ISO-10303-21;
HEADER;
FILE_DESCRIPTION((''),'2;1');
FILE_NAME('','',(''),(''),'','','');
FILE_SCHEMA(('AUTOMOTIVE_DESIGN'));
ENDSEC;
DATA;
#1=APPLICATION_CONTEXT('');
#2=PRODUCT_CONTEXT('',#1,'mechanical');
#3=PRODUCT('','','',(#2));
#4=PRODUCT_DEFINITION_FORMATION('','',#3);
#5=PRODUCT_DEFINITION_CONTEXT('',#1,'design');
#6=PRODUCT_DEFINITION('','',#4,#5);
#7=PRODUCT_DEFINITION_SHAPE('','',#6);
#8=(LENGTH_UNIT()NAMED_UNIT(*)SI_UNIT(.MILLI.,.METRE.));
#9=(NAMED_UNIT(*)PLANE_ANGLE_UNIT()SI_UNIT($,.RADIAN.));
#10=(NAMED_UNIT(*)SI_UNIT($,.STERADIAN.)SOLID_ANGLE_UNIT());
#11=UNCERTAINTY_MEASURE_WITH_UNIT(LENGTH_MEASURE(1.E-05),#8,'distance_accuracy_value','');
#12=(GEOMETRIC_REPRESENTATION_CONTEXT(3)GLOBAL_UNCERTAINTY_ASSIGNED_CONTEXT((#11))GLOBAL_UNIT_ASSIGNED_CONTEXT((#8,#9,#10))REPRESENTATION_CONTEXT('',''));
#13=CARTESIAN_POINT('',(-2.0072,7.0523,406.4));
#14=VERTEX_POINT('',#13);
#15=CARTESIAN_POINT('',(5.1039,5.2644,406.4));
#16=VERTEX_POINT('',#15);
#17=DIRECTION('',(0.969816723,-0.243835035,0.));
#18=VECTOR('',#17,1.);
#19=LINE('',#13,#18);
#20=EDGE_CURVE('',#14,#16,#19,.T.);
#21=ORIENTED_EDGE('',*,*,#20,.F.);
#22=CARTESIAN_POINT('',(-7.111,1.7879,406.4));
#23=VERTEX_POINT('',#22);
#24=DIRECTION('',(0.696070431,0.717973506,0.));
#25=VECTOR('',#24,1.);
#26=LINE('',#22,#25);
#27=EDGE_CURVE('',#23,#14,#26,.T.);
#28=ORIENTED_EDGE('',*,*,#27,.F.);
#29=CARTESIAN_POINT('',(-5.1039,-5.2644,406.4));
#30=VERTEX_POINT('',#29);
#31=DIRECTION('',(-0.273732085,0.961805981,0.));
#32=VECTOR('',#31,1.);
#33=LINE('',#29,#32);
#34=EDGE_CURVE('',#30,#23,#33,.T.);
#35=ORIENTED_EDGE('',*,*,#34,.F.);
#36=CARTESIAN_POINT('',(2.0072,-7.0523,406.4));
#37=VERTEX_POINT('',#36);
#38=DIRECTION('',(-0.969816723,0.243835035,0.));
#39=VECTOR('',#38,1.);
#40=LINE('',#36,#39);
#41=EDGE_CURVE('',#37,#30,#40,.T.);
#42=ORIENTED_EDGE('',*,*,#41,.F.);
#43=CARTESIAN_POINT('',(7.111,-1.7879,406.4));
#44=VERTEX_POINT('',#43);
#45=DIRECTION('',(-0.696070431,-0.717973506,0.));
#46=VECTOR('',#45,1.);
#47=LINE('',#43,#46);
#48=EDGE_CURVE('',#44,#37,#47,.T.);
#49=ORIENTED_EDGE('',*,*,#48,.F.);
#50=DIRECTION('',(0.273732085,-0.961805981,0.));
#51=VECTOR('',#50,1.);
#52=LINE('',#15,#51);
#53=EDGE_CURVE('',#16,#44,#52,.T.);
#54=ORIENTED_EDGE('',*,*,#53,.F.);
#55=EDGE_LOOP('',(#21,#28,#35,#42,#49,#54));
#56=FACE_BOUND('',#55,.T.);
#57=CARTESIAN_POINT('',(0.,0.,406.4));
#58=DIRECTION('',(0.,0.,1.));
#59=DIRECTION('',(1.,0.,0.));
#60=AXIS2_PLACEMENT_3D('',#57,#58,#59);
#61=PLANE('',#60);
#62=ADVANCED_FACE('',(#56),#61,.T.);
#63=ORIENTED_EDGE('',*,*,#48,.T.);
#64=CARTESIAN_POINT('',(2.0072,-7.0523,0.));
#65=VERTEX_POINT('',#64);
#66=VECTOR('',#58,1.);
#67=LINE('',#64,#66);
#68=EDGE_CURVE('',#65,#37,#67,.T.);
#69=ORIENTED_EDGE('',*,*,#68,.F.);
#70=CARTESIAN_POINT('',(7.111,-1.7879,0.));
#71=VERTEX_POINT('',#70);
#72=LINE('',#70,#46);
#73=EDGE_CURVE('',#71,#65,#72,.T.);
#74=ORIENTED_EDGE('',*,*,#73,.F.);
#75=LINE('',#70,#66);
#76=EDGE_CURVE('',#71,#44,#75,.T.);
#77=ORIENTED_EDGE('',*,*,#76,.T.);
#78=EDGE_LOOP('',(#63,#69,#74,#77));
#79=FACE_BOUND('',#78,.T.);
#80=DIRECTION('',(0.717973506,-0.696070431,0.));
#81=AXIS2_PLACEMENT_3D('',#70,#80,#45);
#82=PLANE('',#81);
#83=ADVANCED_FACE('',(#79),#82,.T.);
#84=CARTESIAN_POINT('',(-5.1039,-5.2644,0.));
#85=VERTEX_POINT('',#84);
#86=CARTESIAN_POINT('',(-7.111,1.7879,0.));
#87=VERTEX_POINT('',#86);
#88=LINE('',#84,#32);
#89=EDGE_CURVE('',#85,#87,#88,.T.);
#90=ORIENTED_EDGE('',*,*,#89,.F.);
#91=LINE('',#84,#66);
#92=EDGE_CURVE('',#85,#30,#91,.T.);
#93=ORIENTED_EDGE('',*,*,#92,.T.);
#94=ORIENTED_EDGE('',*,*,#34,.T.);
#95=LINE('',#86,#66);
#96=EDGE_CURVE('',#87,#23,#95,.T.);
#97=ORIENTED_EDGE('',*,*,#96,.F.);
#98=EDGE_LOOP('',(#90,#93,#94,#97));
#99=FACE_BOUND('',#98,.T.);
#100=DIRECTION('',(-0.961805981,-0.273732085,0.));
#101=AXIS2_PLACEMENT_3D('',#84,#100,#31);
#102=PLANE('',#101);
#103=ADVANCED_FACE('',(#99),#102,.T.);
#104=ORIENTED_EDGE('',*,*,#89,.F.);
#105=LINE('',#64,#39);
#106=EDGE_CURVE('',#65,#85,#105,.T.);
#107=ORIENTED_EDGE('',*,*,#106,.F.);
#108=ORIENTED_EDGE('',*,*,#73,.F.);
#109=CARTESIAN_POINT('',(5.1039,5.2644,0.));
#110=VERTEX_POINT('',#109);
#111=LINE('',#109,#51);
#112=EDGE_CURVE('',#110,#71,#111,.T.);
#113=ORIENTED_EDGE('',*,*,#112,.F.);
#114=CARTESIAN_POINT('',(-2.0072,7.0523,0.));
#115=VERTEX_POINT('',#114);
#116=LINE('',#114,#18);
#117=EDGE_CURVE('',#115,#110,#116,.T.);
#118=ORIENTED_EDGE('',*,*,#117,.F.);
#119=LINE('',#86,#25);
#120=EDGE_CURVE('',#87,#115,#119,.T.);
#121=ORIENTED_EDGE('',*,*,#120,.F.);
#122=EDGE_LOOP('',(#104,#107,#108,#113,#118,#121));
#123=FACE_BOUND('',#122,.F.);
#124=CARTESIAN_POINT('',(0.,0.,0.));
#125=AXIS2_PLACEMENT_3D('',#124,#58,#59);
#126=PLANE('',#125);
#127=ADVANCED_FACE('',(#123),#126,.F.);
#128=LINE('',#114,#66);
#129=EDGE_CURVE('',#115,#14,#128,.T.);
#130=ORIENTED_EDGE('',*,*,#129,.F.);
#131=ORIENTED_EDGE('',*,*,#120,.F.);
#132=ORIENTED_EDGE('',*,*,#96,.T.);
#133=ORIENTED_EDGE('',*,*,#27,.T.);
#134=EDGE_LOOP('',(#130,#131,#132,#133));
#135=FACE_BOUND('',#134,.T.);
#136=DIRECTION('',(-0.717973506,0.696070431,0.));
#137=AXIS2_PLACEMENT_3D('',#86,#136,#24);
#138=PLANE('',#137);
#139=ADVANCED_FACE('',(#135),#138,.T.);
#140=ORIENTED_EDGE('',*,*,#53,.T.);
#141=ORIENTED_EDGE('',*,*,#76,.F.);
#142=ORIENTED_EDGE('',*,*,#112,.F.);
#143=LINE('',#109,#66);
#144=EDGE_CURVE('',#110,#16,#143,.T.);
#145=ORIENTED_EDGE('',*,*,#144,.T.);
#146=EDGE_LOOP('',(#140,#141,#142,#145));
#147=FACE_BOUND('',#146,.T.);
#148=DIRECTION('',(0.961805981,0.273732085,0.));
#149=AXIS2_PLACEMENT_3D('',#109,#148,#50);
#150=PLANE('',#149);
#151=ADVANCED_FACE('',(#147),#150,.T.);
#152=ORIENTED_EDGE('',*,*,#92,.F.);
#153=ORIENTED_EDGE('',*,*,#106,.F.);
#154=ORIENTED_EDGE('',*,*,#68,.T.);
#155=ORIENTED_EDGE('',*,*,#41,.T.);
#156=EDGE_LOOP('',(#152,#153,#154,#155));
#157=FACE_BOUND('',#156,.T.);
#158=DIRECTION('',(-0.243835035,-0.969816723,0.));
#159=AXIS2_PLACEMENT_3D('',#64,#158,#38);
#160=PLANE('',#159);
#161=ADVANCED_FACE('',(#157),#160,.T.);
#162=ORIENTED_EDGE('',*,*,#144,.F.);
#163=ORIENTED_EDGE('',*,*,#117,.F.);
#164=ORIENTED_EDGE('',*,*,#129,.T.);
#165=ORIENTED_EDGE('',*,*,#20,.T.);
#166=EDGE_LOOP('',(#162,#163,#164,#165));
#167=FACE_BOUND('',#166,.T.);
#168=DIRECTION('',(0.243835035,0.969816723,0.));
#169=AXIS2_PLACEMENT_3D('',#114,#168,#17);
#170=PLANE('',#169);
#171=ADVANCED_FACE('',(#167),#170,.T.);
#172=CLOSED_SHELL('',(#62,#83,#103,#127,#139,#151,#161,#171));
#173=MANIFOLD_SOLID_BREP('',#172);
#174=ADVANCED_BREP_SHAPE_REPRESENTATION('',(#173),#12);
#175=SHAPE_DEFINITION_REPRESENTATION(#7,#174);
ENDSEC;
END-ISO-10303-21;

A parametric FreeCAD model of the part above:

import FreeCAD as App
import Part
import Sketcher
from FreeCAD import Vector
Q = App.Units.Quantity


def add_polygon(sketch, points):
    """Adds a closed chain of lines whose ends are joined by coincident constraints."""
    first, n = sketch.GeometryCount, len(points)
    for a, b in zip(points, points[1:] + points[:1]):
        sketch.addGeometry(Part.LineSegment(App.Vector(*a, 0), App.Vector(*b, 0)), False)
    for i in range(n):
        sketch.addConstraint(Sketcher.Constraint("Coincident", first + i, 2, first + (i + 1) % n, 1))

doc = App.newDocument("Part")
body = doc.addObject("PartDesign::Body", "Body")

# Sketch on XY plane
sketch1 = body.newObject("Sketcher::SketchObject", "Sketch")
sketch1.AttachmentSupport = (doc.getObject("XY_Plane"), [""])
sketch1.MapMode = "FlatFace"
add_polygon(sketch1, [(2, -7), (7, -2), (5, 5), (-2, 7), (-7, 2), (-5, -5)])  # lines 0-5
sketch1.addConstraint([
    Sketcher.Constraint("Symmetric", 0, 2, 3, 2, -1, 1),
    Sketcher.Constraint("Symmetric", 1, 2, 4, 2, -1, 1),
    Sketcher.Constraint("Symmetric", 2, 2, 5, 2, -1, 1),
    Sketcher.Constraint("Equal", 0, 1),
    Sketcher.Constraint("Equal", 1, 2),
    Sketcher.Constraint("DistanceY", 0, 2, -1, 1, Q("0.0704 in")),
    Sketcher.Constraint("DistanceY", 1, 2, 2, 2, Q("0.0704 in")),
    Sketcher.Constraint("DistanceX", 3, 2, 1, 2, Q("0.4809 in")),
    Sketcher.Constraint("DistanceY", 4, 2, 2, 2, Q("0.4849 in")),
])
pad1 = body.newObject("PartDesign::Pad", "Pad")
pad1.Profile = sketch1
pad1.Length = Q("16 in")

doc.recompute()
